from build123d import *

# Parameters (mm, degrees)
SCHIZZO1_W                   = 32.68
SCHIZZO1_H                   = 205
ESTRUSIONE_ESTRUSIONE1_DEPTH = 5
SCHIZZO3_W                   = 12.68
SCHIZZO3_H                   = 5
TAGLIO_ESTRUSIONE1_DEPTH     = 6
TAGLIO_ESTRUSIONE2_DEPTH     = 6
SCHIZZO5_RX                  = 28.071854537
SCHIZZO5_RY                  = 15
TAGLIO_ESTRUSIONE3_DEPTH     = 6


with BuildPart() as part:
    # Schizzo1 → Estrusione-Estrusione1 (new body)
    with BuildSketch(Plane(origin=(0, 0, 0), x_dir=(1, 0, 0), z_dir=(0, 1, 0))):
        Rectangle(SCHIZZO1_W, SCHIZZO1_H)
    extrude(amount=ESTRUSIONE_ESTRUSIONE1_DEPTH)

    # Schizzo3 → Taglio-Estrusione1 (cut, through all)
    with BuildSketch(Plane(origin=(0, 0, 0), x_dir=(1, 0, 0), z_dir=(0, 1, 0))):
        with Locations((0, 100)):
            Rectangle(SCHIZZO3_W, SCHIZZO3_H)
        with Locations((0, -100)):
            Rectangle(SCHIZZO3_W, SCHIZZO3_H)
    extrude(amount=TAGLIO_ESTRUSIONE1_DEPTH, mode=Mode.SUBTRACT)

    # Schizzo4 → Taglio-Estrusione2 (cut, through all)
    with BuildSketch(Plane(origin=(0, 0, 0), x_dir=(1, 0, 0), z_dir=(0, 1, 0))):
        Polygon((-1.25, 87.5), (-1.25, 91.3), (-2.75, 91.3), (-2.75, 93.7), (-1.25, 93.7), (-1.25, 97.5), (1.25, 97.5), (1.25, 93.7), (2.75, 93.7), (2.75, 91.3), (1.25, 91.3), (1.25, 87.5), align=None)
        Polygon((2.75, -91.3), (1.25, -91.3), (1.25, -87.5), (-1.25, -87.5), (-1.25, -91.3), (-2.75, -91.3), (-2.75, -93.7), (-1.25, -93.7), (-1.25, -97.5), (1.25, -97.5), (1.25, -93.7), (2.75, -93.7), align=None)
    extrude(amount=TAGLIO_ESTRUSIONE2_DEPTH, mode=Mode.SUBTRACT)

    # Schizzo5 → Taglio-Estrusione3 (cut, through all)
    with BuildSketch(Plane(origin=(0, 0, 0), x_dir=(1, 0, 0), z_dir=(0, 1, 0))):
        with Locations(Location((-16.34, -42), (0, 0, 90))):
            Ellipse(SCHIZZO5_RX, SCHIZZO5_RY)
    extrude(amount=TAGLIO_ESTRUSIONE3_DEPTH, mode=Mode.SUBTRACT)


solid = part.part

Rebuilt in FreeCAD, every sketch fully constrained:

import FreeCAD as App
import Part
import Sketcher
Q = App.Units.Quantity


def add_polygon(sketch, points):
    """Adds a closed chain of lines whose ends are joined by coincident constraints."""
    first, n = sketch.GeometryCount, len(points)
    for a, b in zip(points, points[1:] + points[:1]):
        sketch.addGeometry(Part.LineSegment(App.Vector(*a, 0), App.Vector(*b, 0)), False)
    for i in range(n):
        sketch.addConstraint(Sketcher.Constraint("Coincident", first + i, 2, first + (i + 1) % n, 1))

doc = App.newDocument("Part")
body = doc.addObject("PartDesign::Body", "Body")

# Sketch on XZ plane
sketch1 = body.newObject("Sketcher::SketchObject", "Sketch")
sketch1.AttachmentSupport = (doc.getObject("XZ_Plane"), [""])
sketch1.MapMode = "FlatFace"
add_polygon(sketch1, [(-16, -102), (-16, 102), (16, 102), (16, -102)])  # lines 0-3
sketch1.addConstraint([
    Sketcher.Constraint("Vertical", 0),
    Sketcher.Constraint("Horizontal", 1),
    Sketcher.Constraint("Vertical", 2),
    Sketcher.Constraint("Horizontal", 3),
    Sketcher.Constraint("Symmetric", 0, 2, 2, 2, -1, 1),
    Sketcher.Constraint("DistanceY", 0, 1, 0, 2, Q("205 mm")),
    Sketcher.Constraint("DistanceX", 1, 1, 1, 2, Q("32.68 mm")),
])
pad1 = body.newObject("PartDesign::Pad", "Pad")
pad1.Profile = sketch1
pad1.Length = 5
pad1.Reversed = True

# Sketch on XZ plane
sketch2 = body.newObject("Sketcher::SketchObject", "Sketch001")
sketch2.AttachmentSupport = (doc.getObject("XZ_Plane"), [""])
sketch2.MapMode = "FlatFace"
add_polygon(sketch2, [(-6, -102), (-6, -98), (6, -98), (6, -102)])  # lines 0-3
add_polygon(sketch2, [(-6, 98), (-6, 102), (6, 102), (6, 98)])  # lines 4-7
sketch2.addConstraint([
    Sketcher.Constraint("Vertical", 0),
    Sketcher.Constraint("Horizontal", 1),
    Sketcher.Constraint("Vertical", 2),
    Sketcher.Constraint("Horizontal", 3),
    Sketcher.Constraint("Vertical", 4),
    Sketcher.Constraint("Horizontal", 5),
    Sketcher.Constraint("Vertical", 6),
    Sketcher.Constraint("Horizontal", 7),
    Sketcher.Constraint("Symmetric", 2, 2, 4, 2, -1, 1),
    Sketcher.Constraint("Symmetric", 0, 2, 6, 2, -1, 1),
    Sketcher.Constraint("Vertical", 3, 2, 4, 2),
    Sketcher.Constraint("DistanceY", 0, 1, 0, 2, Q("5 mm")),
    Sketcher.Constraint("DistanceY", 0, 2, 4, 2, Q("200 mm")),
    Sketcher.Constraint("DistanceX", 1, 1, 1, 2, Q("12.68 mm")),
])
pocket1 = body.newObject("PartDesign::Pocket", "Pocket")
pocket1.Profile = sketch2
pocket1.Type = "ThroughAll"

# Sketch on XZ plane
sketch3 = body.newObject("Sketcher::SketchObject", "Sketch002")
sketch3.AttachmentSupport = (doc.getObject("XZ_Plane"), [""])
sketch3.MapMode = "FlatFace"
add_polygon(sketch3, [(-1.2, -91.3), (-1.2, -87.5), (1.2, -87.5), (1.2, -91.3), (2.8, -91.3), (2.8, -93.7), (1.2, -93.7), (1.2, -97.5), (-1.2, -97.5), (-1.2, -93.7), (-2.8, -93.7), (-2.8, -91.3)])  # lines 0-11
add_polygon(sketch3, [(2.8, 91.3), (1.2, 91.3), (1.2, 87.5), (-1.2, 87.5), (-1.2, 91.3), (-2.8, 91.3), (-2.8, 93.7), (-1.2, 93.7), (-1.2, 97.5), (1.2, 97.5), (1.2, 93.7), (2.8, 93.7)])  # lines 12-23
sketch3.addConstraint([
    Sketcher.Constraint("Vertical", 0),
    Sketcher.Constraint("Horizontal", 1),
    Sketcher.Constraint("Vertical", 2),
    Sketcher.Constraint("Horizontal", 3),
    Sketcher.Constraint("Vertical", 4),
    Sketcher.Constraint("Horizontal", 5),
    Sketcher.Constraint("Vertical", 6),
    Sketcher.Constraint("Horizontal", 7),
    Sketcher.Constraint("Vertical", 8),
    Sketcher.Constraint("Horizontal", 9),
    Sketcher.Constraint("Vertical", 10),
    Sketcher.Constraint("Horizontal", 11),
    Sketcher.Constraint("Horizontal", 12),
    Sketcher.Constraint("Vertical", 13),
    Sketcher.Constraint("Horizontal", 14),
    Sketcher.Constraint("Vertical", 15),
    Sketcher.Constraint("Horizontal", 16),
    Sketcher.Constraint("Vertical", 17),
    Sketcher.Constraint("Horizontal", 18),
    Sketcher.Constraint("Vertical", 19),
    Sketcher.Constraint("Horizontal", 20),
    Sketcher.Constraint("Vertical", 21),
    Sketcher.Constraint("Horizontal", 22),
    Sketcher.Constraint("Vertical", 23),
    Sketcher.Constraint("Symmetric", 11, 2, 12, 2, -1, 1),
    Sketcher.Constraint("Symmetric", 1, 2, 14, 2, -1, 1),
    Sketcher.Constraint("Symmetric", 3, 2, 16, 2, -1, 1),
    Sketcher.Constraint("Symmetric", 5, 2, 18, 2, -1, 1),
    Sketcher.Constraint("Symmetric", 7, 2, 20, 2, -1, 1),
    Sketcher.Constraint("Symmetric", 9, 2, 22, 2, -1, 1),
    Sketcher.Constraint("Symmetric", 5, 2, 8, 2, -2),
    Sketcher.Constraint("Symmetric", 3, 2, 10, 2, -2),
    Sketcher.Constraint("Vertical", 2, 2, 5, 2),
    Sketcher.Constraint("Vertical", 0, 2, 7, 2),
    Sketcher.Constraint("Equal", 2, 6),
    Sketcher.Constraint("DistanceX", 1, 1, 1, 2, Q("2.5 mm")),
    Sketcher.Constraint("DistanceX", 3, 1, 3, 2, Q("1.5 mm")),
    Sketcher.Constraint("DistanceY", 0, 1, 0, 2, Q("3.8 mm")),
    Sketcher.Constraint("DistanceY", 4, 2, 4, 1, Q("2.4 mm")),
    Sketcher.Constraint("DistanceY", 1, 2, 13, 2, Q("175 mm")),
])
pocket2 = body.newObject("PartDesign::Pocket", "Pocket001")
pocket2.Profile = sketch3
pocket2.Type = "ThroughAll"

# Sketch on XZ plane
sketch4 = body.newObject("Sketcher::SketchObject", "Sketch003")
sketch4.AttachmentSupport = (doc.getObject("XZ_Plane"), [""])
sketch4.MapMode = "FlatFace"
sketch4.addGeometry(Part.Ellipse(App.Vector(-16.34, 13.928145, 0), App.Vector(-1.34, 42, 0), App.Vector(-16.34, 42, 0)), False)
sketch4.addConstraint(Sketcher.Constraint("Block", 0))
pocket3 = body.newObject("PartDesign::Pocket", "Pocket002")
pocket3.Profile = sketch4
pocket3.Type = "ThroughAll"

doc.recompute()
